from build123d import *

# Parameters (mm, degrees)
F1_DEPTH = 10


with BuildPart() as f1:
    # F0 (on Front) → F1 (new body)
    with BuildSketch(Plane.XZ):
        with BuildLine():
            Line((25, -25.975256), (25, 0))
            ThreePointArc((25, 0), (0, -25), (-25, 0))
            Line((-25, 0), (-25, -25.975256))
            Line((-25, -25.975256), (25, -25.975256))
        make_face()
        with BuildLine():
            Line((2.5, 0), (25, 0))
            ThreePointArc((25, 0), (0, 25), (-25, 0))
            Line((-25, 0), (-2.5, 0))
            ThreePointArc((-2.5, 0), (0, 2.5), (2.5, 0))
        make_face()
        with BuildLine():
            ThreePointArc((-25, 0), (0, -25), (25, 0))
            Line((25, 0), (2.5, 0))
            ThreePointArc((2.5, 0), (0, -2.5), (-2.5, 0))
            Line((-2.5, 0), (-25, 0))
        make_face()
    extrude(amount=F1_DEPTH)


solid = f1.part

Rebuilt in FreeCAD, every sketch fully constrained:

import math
import FreeCAD as App
import Part
import Sketcher

V = App.Vector

doc = App.newDocument("Part")
params = doc.addObject("Spreadsheet::Sheet", "Params")
for row, (alias, value) in enumerate([
    ("sketch1_diameter", "5 mm"),
    ("sketch1_radius", "25 mm"),
    ("pad1_length", "10 mm"),
], start=1):
    params.set(f"A{row}", alias)
    params.set(f"B{row}", "=" + value)
    params.setAlias(f"B{row}", alias)

body = doc.addObject("PartDesign::Body", "Body")

# Sketch on XZ plane
sketch1 = body.newObject("Sketcher::SketchObject", "Sketch")
sketch1.AttachmentSupport = (doc.getObject("XZ_Plane"), [""])
sketch1.MapMode = "FlatFace"
sketch1.addGeometry(Part.LineSegment(V(25, -25.975256, 0), V(25, 0, 0)), False)
sketch1.addGeometry(Part.ArcOfCircle(Part.Circle(V(0, 0, 0), V(0, 0, 1), 25), math.radians(0), math.radians(180)), False)
sketch1.addGeometry(Part.LineSegment(V(-25, 0, 0), V(-25, -25.975256, 0)), False)
sketch1.addGeometry(Part.LineSegment(V(-25, -25.975256, 0), V(25, -25.975256, 0)), False)
sketch1.addGeometry(Part.Circle(V(0, 0, 0), V(0, 0, 1), 2.5), False)
sketch1.addConstraint(Sketcher.Constraint("Tangent", 0, 2, 1, 1))
sketch1.addConstraint(Sketcher.Constraint("Tangent", 1, 2, 2, 1))
sketch1.addConstraint(Sketcher.Constraint("Coincident", 2, 2, 3, 1))
sketch1.addConstraint(Sketcher.Constraint("Coincident", 3, 2, 0, 1))
sketch1.addConstraint(Sketcher.Constraint("Vertical", 0))
sketch1.addConstraint(Sketcher.Constraint("Vertical", 2))
sketch1.addConstraint(Sketcher.Constraint("Horizontal", 3))
sketch1.addConstraint(Sketcher.Constraint("Coincident", 1, 3, -1, 1))
sketch1.addConstraint(Sketcher.Constraint("Coincident", 4, 3, -1, 1))
sketch1.addConstraint(Sketcher.Constraint("Diameter", 4, 5.0))
sketch1.addConstraint(Sketcher.Constraint("Radius", 1, 25.0))
sketch1.addConstraint(Sketcher.Constraint("DistanceY", 0, 1, 0, 2, 25.975256))
sketch1.setExpression("Constraints[9]", "Params.sketch1_diameter")
sketch1.setExpression("Constraints[10]", "Params.sketch1_radius")
pad1 = body.newObject("PartDesign::Pad", "Pad")
pad1.Profile = sketch1
pad1.setExpression("Length", "Params.pad1_length")

doc.recompute()
